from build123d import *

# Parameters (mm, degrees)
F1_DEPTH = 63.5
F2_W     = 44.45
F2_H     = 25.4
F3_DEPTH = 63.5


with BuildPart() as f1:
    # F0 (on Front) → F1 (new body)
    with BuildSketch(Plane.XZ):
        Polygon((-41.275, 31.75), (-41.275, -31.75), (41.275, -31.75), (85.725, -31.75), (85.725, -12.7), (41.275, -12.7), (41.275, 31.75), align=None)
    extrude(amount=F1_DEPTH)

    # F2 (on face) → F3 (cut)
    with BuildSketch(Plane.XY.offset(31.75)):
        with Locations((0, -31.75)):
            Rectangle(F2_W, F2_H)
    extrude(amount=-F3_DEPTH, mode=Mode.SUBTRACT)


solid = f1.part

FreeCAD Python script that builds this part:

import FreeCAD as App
import Part
import Sketcher
from FreeCAD import Vector
Q = App.Units.Quantity


def add_polygon(sketch, points):
    """Adds a closed chain of lines whose ends are joined by coincident constraints."""
    first, n = sketch.GeometryCount, len(points)
    for a, b in zip(points, points[1:] + points[:1]):
        sketch.addGeometry(Part.LineSegment(App.Vector(*a, 0), App.Vector(*b, 0)), False)
    for i in range(n):
        sketch.addConstraint(Sketcher.Constraint("Coincident", first + i, 2, first + (i + 1) % n, 1))

doc = App.newDocument("Part")
params = doc.addObject("Spreadsheet::Sheet", "Params")
for row, (alias, value) in enumerate([
    ("sketch1_width", "5 in"),
    ("sketch1_height", "2.5 in"),
    ("sketch1_width2", "1.75 in"),
    ("pad1_length", "2.5 in"),
    ("sketch2_height", "1 in"),
    ("sketch2_width", "1.75 in"),
    ("pocket1_length", "2.5 in"),
], start=1):
    params.set(f"A{row}", alias)
    params.set(f"B{row}", "=" + value)
    params.setAlias(f"B{row}", alias)

body = doc.addObject("PartDesign::Body", "Body")

sketch1 = body.newObject("Sketcher::SketchObject", "Sketch")
sketch1.AttachmentSupport = (doc.getObject("XZ_Plane"), [""])
sketch1.MapMode = "FlatFace"
add_polygon(sketch1, [(-41, 32), (-41, -32), (86, -32), (86, -13), (41, -13), (41, 32)])
sketch1.addConstraint(Sketcher.Constraint("Vertical", 0))
sketch1.addConstraint(Sketcher.Constraint("Horizontal", 1))
sketch1.addConstraint(Sketcher.Constraint("Vertical", 2))
sketch1.addConstraint(Sketcher.Constraint("Horizontal", 3))
sketch1.addConstraint(Sketcher.Constraint("Vertical", 4))
sketch1.addConstraint(Sketcher.Constraint("Horizontal", 5))
sketch1.addConstraint(Sketcher.Constraint("Symmetric", 0, 2, 4, 2, -1, 1))
sketch1.addConstraint(Sketcher.Constraint("Equal", 3, 4))
sketch1.addConstraint(Sketcher.Constraint("DistanceX", 1, 1, 1, 2, Q("5 in")))
sketch1.addConstraint(Sketcher.Constraint("DistanceY", 0, 2, 0, 1, Q("2.5 in")))
sketch1.addConstraint(Sketcher.Constraint("DistanceX", 3, 2, 3, 1, Q("1.75 in")))
sketch1.setExpression("Constraints[14]", "Params.sketch1_width")
sketch1.setExpression("Constraints[15]", "Params.sketch1_height")
sketch1.setExpression("Constraints[16]", "Params.sketch1_width2")
pad1 = body.newObject("PartDesign::Pad", "Pad")
pad1.Profile = sketch1
pad1.setExpression("Length", "Params.pad1_length")

sketch2 = body.newObject("Sketcher::SketchObject", "Sketch001")
sketch2.AttachmentSupport = (doc.getObject("XY_Plane"), [""])
sketch2.MapMode = "FlatFace"
sketch2.AttachmentOffset = App.Placement(Vector(0, 0, 1.25 * 25.4), App.Rotation())
add_polygon(sketch2, [(-22, -19), (-22, -44), (22, -44), (22, -19)])
sketch2.addConstraint(Sketcher.Constraint("Vertical", 0))
sketch2.addConstraint(Sketcher.Constraint("Horizontal", 1))
sketch2.addConstraint(Sketcher.Constraint("Vertical", 2))
sketch2.addConstraint(Sketcher.Constraint("Horizontal", 3))
sketch2.addConstraint(Sketcher.Constraint("DistanceY", 0, 2, 0, 1, Q("1 in")))
sketch2.addConstraint(Sketcher.Constraint("DistanceX", 1, 1, 1, 2, Q("1.75 in")))
sketch2.addConstraint(Sketcher.Constraint("DistanceY", 0, 2, -1, 1, Q("1.75 in")))
sketch2.addConstraint(Sketcher.Constraint("DistanceX", 0, 2, -1, 1, Q("0.875 in")))
sketch2.setExpression("Constraints[8]", "Params.sketch2_height")
sketch2.setExpression("Constraints[9]", "Params.sketch2_width")
pocket1 = body.newObject("PartDesign::Pocket", "Pocket")
pocket1.Profile = sketch2
pocket1.setExpression("Length", "Params.pocket1_length")

doc.recompute()
